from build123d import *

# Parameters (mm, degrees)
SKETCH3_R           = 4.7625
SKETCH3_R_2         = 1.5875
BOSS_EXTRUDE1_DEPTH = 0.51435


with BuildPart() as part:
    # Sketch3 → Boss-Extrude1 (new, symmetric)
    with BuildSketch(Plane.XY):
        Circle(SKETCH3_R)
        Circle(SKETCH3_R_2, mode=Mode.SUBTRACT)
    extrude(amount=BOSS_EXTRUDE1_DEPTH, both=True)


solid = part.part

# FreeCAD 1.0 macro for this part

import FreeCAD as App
import Part
import Sketcher
from FreeCAD import Vector
Q = App.Units.Quantity

doc = App.newDocument("Part")
params = doc.addObject("Spreadsheet::Sheet", "Params")
for row, (alias, value) in enumerate([
    ("sketch1_diameter", "0.375 in"),
    ("sketch1_diameter2", "0.125 in"),
    ("pad1_length", "0.0405 in"),
], start=1):
    params.set(f"A{row}", alias)
    params.set(f"B{row}", "=" + value)
    params.setAlias(f"B{row}", alias)

body = doc.addObject("PartDesign::Body", "Body")

sketch1 = body.newObject("Sketcher::SketchObject", "Sketch")
sketch1.AttachmentSupport = (doc.getObject("XY_Plane"), [""])
sketch1.MapMode = "FlatFace"
sketch1.addGeometry([
    Part.Circle(Vector(0, 0, 0), Vector(0, 0, 1), 4.8),
    Part.Circle(Vector(0, 0, 0), Vector(0, 0, 1), 1.6),
], False)
sketch1.addConstraint([
    Sketcher.Constraint("Coincident", 0, 3, -1, 1),
    Sketcher.Constraint("Coincident", 1, 3, -1, 1),
    Sketcher.Constraint("Diameter", 0, Q("0.375 in")),
    Sketcher.Constraint("Diameter", 1, Q("0.125 in")),
])
sketch1.setExpression("Constraints[2]", "Params.sketch1_diameter")
sketch1.setExpression("Constraints[3]", "Params.sketch1_diameter2")
pad1 = body.newObject("PartDesign::Pad", "Pad")
pad1.Profile = sketch1
pad1.setExpression("Length", "Params.pad1_length")
pad1.Midplane = True

doc.recompute()
